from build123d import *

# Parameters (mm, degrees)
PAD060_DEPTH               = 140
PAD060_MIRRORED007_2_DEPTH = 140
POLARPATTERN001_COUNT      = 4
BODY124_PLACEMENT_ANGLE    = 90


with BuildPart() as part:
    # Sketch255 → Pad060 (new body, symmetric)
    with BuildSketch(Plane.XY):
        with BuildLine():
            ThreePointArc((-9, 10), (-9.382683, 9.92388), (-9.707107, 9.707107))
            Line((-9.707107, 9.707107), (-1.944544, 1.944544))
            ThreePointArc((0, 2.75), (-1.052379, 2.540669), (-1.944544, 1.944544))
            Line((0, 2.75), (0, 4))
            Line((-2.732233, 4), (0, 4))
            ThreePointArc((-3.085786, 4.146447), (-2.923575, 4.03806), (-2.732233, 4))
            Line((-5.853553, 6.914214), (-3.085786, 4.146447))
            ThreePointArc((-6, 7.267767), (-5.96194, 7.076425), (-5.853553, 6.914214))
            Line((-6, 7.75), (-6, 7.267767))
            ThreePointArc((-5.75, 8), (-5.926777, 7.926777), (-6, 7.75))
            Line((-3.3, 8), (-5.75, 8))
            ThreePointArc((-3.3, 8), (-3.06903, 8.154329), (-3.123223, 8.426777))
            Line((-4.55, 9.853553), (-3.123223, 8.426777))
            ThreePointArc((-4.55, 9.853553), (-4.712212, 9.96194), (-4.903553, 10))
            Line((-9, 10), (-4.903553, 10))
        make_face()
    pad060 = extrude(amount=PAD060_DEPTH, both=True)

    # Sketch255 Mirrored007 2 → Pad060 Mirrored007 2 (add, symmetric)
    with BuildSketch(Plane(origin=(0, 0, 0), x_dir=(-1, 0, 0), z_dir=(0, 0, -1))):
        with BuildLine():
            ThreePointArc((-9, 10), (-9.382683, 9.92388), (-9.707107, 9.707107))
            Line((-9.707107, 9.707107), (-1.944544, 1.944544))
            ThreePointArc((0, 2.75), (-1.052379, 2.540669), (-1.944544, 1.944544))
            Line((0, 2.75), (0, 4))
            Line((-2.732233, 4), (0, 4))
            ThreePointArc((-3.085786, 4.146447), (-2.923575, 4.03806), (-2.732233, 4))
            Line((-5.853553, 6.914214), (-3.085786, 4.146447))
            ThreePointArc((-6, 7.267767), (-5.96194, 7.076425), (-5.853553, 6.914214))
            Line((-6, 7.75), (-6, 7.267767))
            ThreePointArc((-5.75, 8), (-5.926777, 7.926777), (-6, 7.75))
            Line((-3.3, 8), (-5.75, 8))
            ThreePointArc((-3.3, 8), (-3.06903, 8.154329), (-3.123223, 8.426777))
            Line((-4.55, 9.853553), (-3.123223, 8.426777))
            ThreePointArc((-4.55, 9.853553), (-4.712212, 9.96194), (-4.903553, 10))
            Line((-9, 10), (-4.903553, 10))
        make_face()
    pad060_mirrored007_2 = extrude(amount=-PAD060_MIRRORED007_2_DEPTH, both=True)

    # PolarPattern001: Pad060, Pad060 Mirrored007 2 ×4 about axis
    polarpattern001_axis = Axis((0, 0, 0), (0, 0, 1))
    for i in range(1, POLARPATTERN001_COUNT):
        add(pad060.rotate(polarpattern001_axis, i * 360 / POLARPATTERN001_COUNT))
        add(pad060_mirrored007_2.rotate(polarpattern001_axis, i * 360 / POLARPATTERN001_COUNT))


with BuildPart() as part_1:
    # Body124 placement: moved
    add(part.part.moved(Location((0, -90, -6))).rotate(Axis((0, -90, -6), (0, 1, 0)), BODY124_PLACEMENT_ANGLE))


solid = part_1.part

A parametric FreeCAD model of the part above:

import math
import FreeCAD as App
import Part
import Sketcher
Q = App.Units.Quantity

doc = App.newDocument("Part")
body = doc.addObject("PartDesign::Body", "Body")

# Sketch on XY plane
sketch1 = body.newObject("Sketcher::SketchObject", "Sketch")
sketch1.AttachmentSupport = (doc.getObject("XY_Plane"), [""])
sketch1.MapMode = "FlatFace"
sketch1.addGeometry([
    Part.ArcOfCircle(Part.Circle(App.Vector(-9, 9, 0), App.Vector(0, 0, 1), 1), math.radians(90), math.radians(135)),  # 0
    Part.LineSegment(App.Vector(-9.71, 9.71, 0), App.Vector(-1.94, 1.94, 0)),  # 1
    Part.ArcOfCircle(Part.Circle(App.Vector(0, 0, 0), App.Vector(0, 0, 1), 2.75), math.radians(90), math.radians(135)),  # 2
    Part.LineSegment(App.Vector(0, 2.75, 0), App.Vector(0, 4, 0)),  # 3
    Part.LineSegment(App.Vector(0, 4, 0), App.Vector(-2.73, 4, 0)),  # 4
    Part.ArcOfCircle(Part.Circle(App.Vector(-2.73, 4.5, 0), App.Vector(0, 0, 1), 0.5), math.radians(-135), math.radians(-90)),  # 5
    Part.LineSegment(App.Vector(-3.09, 4.15, 0), App.Vector(-5.85, 6.91, 0)),  # 6
    Part.ArcOfCircle(Part.Circle(App.Vector(-5.5, 7.27, 0), App.Vector(0, 0, 1), 0.5), math.radians(180), math.radians(225)),  # 7
    Part.LineSegment(App.Vector(-6, 7.27, 0), App.Vector(-6, 7.75, 0)),  # 8
    Part.ArcOfCircle(Part.Circle(App.Vector(-5.75, 7.75, 0), App.Vector(0, 0, 1), 0.25), math.radians(90), math.radians(180)),  # 9
    Part.LineSegment(App.Vector(-5.75, 8, 0), App.Vector(-3.3, 8, 0)),  # 10
    Part.ArcOfCircle(Part.Circle(App.Vector(-3.3, 8.25, 0), App.Vector(0, 0, 1), 0.25), math.radians(-90), math.radians(45)),  # 11
    Part.LineSegment(App.Vector(-3.12, 8.43, 0), App.Vector(-4.55, 9.85, 0)),  # 12
    Part.ArcOfCircle(Part.Circle(App.Vector(-4.9, 9.5, 0), App.Vector(0, 0, 1), 0.5), math.radians(45), math.radians(90)),  # 13
    Part.LineSegment(App.Vector(-4.9, 10, 0), App.Vector(-9, 10, 0)),  # 14
], False)
sketch1.addConstraint([
    Sketcher.Constraint("Coincident", 0, 2, 1, 1),
    Sketcher.Constraint("Coincident", 1, 2, 2, 2),
    Sketcher.Constraint("Coincident", 2, 1, 3, 1),
    Sketcher.Constraint("Coincident", 3, 2, 4, 1),
    Sketcher.Constraint("Coincident", 4, 2, 5, 2),
    Sketcher.Constraint("Coincident", 5, 1, 6, 1),
    Sketcher.Constraint("Coincident", 6, 2, 7, 2),
    Sketcher.Constraint("Coincident", 7, 1, 8, 1),
    Sketcher.Constraint("Coincident", 8, 2, 9, 2),
    Sketcher.Constraint("Coincident", 9, 1, 10, 1),
    Sketcher.Constraint("Tangent", 10, 2, 11, 1),
    Sketcher.Constraint("Tangent", 11, 2, 12, 1),
    Sketcher.Constraint("Coincident", 12, 2, 13, 1),
    Sketcher.Constraint("Tangent", 13, 2, 14, 1),
    Sketcher.Constraint("Tangent", 14, 2, 0, 1),
    Sketcher.Constraint("Vertical", 3),
    Sketcher.Constraint("Horizontal", 4),
    Sketcher.Constraint("Vertical", 8),
    Sketcher.Constraint("Horizontal", 10),
    Sketcher.Constraint("Horizontal", 14),
    Sketcher.Constraint("Coincident", 2, 3, -1, 1),
    Sketcher.Constraint("Equal", 5, 7),
    Sketcher.Constraint("Equal", 9, 11),
    Sketcher.Constraint("PointOnObject", 2, 1, -2),
    Sketcher.Constraint("Parallel", 1, 6),
    Sketcher.Constraint("Parallel", 6, 12),
    Sketcher.Constraint("Horizontal", 9, 3, 8, 2),
    Sketcher.Constraint("Radius", 0, 0.999999),
    Sketcher.Constraint("Angle", 1, Q("-45 deg")),
    Sketcher.Constraint("Radius", 9, 0.249999),
    Sketcher.Constraint("DistanceX", 0, 3, -1, 1, 9.000001),
    Sketcher.Constraint("DistanceY", -1, 1, 0, 3, 9.000001),
    Sketcher.Constraint("DistanceY", -1, 1, 3, 2, 4.0),
    Sketcher.Constraint("DistanceX", 7, 1, -1, 1, 6.0),
    Sketcher.Constraint("DistanceY", -1, 1, 9, 1, 8.0),
    Sketcher.Constraint("DistanceX", 10, 1, 10, 2, 2.45),
    Sketcher.Constraint("DistanceY", 3, 1, 3, 2, 1.25),
    Sketcher.Constraint("DistanceX", 11, 3, -1, 1, 3.3),
    Sketcher.Constraint("DistanceY", 0, 3, 13, 3, 0.500002),
    Sketcher.Constraint("DistanceX", 9, 1, 12, 2, 1.2),
    Sketcher.Constraint("DistanceX", 6, 2, 13, 3, 0.95),
    Sketcher.Constraint("Radius", 5, 0.499992),
    Sketcher.Constraint("DistanceX", 0, 2, 7, 3, 4.207099),
    Sketcher.Constraint("DistanceX", 4, 2, 4, 1, 2.732233),
    Sketcher.Constraint("DistanceY", 8, 1, 8, 2, 0.482233),
    Sketcher.Constraint("DistanceY", 7, 3, 13, 3, 2.232238),
    Sketcher.Constraint("DistanceX", 5, 1, 5, 3, 0.353551),
])
pad1 = body.newObject("PartDesign::Pad", "Pad")
pad1.Profile = sketch1
pad1.Length = 280
pad1.Midplane = True

# Sketch on XY plane
sketch2 = body.newObject("Sketcher::SketchObject", "Sketch001")
sketch2.AttachmentSupport = (doc.getObject("XY_Plane"), [""])
sketch2.MapMode = "FlatFace"
sketch2.addGeometry([
    Part.ArcOfCircle(Part.Circle(App.Vector(9, 9, 0), App.Vector(0, 0, 1), 1), math.radians(45), math.radians(90)),  # 0
    Part.LineSegment(App.Vector(9.71, 9.71, 0), App.Vector(1.94, 1.94, 0)),  # 1
    Part.ArcOfCircle(Part.Circle(App.Vector(0, 0, 0), App.Vector(0, 0, 1), 2.75), math.radians(45), math.radians(90)),  # 2
    Part.LineSegment(App.Vector(0, 2.75, 0), App.Vector(0, 4, 0)),  # 3
    Part.LineSegment(App.Vector(0, 4, 0), App.Vector(2.73, 4, 0)),  # 4
    Part.ArcOfCircle(Part.Circle(App.Vector(2.73, 4.5, 0), App.Vector(0, 0, 1), 0.5), math.radians(-90), math.radians(-45)),  # 5
    Part.LineSegment(App.Vector(3.09, 4.15, 0), App.Vector(5.85, 6.91, 0)),  # 6
    Part.ArcOfCircle(Part.Circle(App.Vector(5.5, 7.27, 0), App.Vector(0, 0, 1), 0.5), math.radians(-45), math.radians(0)),  # 7
    Part.LineSegment(App.Vector(6, 7.27, 0), App.Vector(6, 7.75, 0)),  # 8
    Part.ArcOfCircle(Part.Circle(App.Vector(5.75, 7.75, 0), App.Vector(0, 0, 1), 0.25), math.radians(0), math.radians(90)),  # 9
    Part.LineSegment(App.Vector(5.75, 8, 0), App.Vector(3.3, 8, 0)),  # 10
    Part.ArcOfCircle(Part.Circle(App.Vector(3.3, 8.25, 0), App.Vector(0, 0, 1), 0.25), math.radians(135), math.radians(270)),  # 11
    Part.LineSegment(App.Vector(3.12, 8.43, 0), App.Vector(4.55, 9.85, 0)),  # 12
    Part.ArcOfCircle(Part.Circle(App.Vector(4.9, 9.5, 0), App.Vector(0, 0, 1), 0.5), math.radians(90), math.radians(135)),  # 13
    Part.LineSegment(App.Vector(4.9, 10, 0), App.Vector(9, 10, 0)),  # 14
], False)
sketch2.addConstraint([
    Sketcher.Constraint("Coincident", 0, 1, 1, 1),
    Sketcher.Constraint("Coincident", 1, 2, 2, 1),
    Sketcher.Constraint("Coincident", 2, 2, 3, 1),
    Sketcher.Constraint("Coincident", 3, 2, 4, 1),
    Sketcher.Constraint("Coincident", 4, 2, 5, 1),
    Sketcher.Constraint("Coincident", 5, 2, 6, 1),
    Sketcher.Constraint("Coincident", 6, 2, 7, 1),
    Sketcher.Constraint("Coincident", 7, 2, 8, 1),
    Sketcher.Constraint("Coincident", 8, 2, 9, 1),
    Sketcher.Constraint("Coincident", 9, 2, 10, 1),
    Sketcher.Constraint("Tangent", 10, 2, 11, 2),
    Sketcher.Constraint("Tangent", 11, 1, 12, 1),
    Sketcher.Constraint("Coincident", 12, 2, 13, 2),
    Sketcher.Constraint("Tangent", 13, 1, 14, 1),
    Sketcher.Constraint("Tangent", 14, 2, 0, 2),
    Sketcher.Constraint("Vertical", 3),
    Sketcher.Constraint("Horizontal", 4),
    Sketcher.Constraint("Vertical", 8),
    Sketcher.Constraint("Horizontal", 10),
    Sketcher.Constraint("Horizontal", 14),
    Sketcher.Constraint("Coincident", 2, 3, -1, 1),
    Sketcher.Constraint("Equal", 5, 7),
    Sketcher.Constraint("Equal", 9, 11),
    Sketcher.Constraint("PointOnObject", 2, 2, -2),
    Sketcher.Constraint("Parallel", 1, 6),
    Sketcher.Constraint("Parallel", 6, 12),
    Sketcher.Constraint("Horizontal", 9, 3, 8, 2),
    Sketcher.Constraint("Radius", 0, 0.999999),
    Sketcher.Constraint("Angle", 1, Q("-135 deg")),
    Sketcher.Constraint("Radius", 9, 0.249999),
    Sketcher.Constraint("DistanceX", -1, 1, 0, 3, 9.000001),
    Sketcher.Constraint("DistanceY", -1, 1, 0, 3, 9.000001),
    Sketcher.Constraint("DistanceY", -1, 1, 3, 2, 4.0),
    Sketcher.Constraint("DistanceX", -1, 1, 7, 2, 6.0),
    Sketcher.Constraint("DistanceY", -1, 1, 9, 2, 8.0),
    Sketcher.Constraint("DistanceX", 10, 2, 10, 1, 2.45),
    Sketcher.Constraint("DistanceY", 3, 1, 3, 2, 1.25),
    Sketcher.Constraint("DistanceX", -1, 1, 11, 3, 3.3),
    Sketcher.Constraint("DistanceY", 0, 3, 13, 3, 0.500002),
    Sketcher.Constraint("DistanceX", 12, 2, 9, 2, 1.2),
    Sketcher.Constraint("DistanceX", 13, 3, 6, 2, 0.95),
    Sketcher.Constraint("Radius", 5, 0.499992),
    Sketcher.Constraint("DistanceX", 7, 3, 0, 1, 4.207099),
    Sketcher.Constraint("DistanceX", 4, 1, 4, 2, 2.732233),
    Sketcher.Constraint("DistanceY", 8, 1, 8, 2, 0.482233),
    Sketcher.Constraint("DistanceY", 7, 3, 13, 3, 2.232238),
    Sketcher.Constraint("DistanceX", 5, 3, 5, 2, 0.353551),
])
pad2 = body.newObject("PartDesign::Pad", "Pad001")
pad2.Profile = sketch2
pad2.Length = 280
pad2.Midplane = True
doc.recompute()

polarpattern = body.newObject("PartDesign::PolarPattern", "PolarPattern")
polarpattern.Originals = [pad1, pad2]
polarpattern.Axis = (doc.getObject("Z_Axis"), [""])
polarpattern.Angle = 360
polarpattern.Occurrences = 4
body.Tip = polarpattern
body2 = doc.addObject("PartDesign::Body", "Body001")
doc.recompute()

body.Placement = App.Placement(App.Vector(0, -90, -6), App.Rotation(App.Vector(0, 1, 0), 90))
boolean = body2.newObject("PartDesign::Boolean", "Boolean")
boolean.Type = "Fuse"
boolean.addObjects([body])

doc.recompute()
